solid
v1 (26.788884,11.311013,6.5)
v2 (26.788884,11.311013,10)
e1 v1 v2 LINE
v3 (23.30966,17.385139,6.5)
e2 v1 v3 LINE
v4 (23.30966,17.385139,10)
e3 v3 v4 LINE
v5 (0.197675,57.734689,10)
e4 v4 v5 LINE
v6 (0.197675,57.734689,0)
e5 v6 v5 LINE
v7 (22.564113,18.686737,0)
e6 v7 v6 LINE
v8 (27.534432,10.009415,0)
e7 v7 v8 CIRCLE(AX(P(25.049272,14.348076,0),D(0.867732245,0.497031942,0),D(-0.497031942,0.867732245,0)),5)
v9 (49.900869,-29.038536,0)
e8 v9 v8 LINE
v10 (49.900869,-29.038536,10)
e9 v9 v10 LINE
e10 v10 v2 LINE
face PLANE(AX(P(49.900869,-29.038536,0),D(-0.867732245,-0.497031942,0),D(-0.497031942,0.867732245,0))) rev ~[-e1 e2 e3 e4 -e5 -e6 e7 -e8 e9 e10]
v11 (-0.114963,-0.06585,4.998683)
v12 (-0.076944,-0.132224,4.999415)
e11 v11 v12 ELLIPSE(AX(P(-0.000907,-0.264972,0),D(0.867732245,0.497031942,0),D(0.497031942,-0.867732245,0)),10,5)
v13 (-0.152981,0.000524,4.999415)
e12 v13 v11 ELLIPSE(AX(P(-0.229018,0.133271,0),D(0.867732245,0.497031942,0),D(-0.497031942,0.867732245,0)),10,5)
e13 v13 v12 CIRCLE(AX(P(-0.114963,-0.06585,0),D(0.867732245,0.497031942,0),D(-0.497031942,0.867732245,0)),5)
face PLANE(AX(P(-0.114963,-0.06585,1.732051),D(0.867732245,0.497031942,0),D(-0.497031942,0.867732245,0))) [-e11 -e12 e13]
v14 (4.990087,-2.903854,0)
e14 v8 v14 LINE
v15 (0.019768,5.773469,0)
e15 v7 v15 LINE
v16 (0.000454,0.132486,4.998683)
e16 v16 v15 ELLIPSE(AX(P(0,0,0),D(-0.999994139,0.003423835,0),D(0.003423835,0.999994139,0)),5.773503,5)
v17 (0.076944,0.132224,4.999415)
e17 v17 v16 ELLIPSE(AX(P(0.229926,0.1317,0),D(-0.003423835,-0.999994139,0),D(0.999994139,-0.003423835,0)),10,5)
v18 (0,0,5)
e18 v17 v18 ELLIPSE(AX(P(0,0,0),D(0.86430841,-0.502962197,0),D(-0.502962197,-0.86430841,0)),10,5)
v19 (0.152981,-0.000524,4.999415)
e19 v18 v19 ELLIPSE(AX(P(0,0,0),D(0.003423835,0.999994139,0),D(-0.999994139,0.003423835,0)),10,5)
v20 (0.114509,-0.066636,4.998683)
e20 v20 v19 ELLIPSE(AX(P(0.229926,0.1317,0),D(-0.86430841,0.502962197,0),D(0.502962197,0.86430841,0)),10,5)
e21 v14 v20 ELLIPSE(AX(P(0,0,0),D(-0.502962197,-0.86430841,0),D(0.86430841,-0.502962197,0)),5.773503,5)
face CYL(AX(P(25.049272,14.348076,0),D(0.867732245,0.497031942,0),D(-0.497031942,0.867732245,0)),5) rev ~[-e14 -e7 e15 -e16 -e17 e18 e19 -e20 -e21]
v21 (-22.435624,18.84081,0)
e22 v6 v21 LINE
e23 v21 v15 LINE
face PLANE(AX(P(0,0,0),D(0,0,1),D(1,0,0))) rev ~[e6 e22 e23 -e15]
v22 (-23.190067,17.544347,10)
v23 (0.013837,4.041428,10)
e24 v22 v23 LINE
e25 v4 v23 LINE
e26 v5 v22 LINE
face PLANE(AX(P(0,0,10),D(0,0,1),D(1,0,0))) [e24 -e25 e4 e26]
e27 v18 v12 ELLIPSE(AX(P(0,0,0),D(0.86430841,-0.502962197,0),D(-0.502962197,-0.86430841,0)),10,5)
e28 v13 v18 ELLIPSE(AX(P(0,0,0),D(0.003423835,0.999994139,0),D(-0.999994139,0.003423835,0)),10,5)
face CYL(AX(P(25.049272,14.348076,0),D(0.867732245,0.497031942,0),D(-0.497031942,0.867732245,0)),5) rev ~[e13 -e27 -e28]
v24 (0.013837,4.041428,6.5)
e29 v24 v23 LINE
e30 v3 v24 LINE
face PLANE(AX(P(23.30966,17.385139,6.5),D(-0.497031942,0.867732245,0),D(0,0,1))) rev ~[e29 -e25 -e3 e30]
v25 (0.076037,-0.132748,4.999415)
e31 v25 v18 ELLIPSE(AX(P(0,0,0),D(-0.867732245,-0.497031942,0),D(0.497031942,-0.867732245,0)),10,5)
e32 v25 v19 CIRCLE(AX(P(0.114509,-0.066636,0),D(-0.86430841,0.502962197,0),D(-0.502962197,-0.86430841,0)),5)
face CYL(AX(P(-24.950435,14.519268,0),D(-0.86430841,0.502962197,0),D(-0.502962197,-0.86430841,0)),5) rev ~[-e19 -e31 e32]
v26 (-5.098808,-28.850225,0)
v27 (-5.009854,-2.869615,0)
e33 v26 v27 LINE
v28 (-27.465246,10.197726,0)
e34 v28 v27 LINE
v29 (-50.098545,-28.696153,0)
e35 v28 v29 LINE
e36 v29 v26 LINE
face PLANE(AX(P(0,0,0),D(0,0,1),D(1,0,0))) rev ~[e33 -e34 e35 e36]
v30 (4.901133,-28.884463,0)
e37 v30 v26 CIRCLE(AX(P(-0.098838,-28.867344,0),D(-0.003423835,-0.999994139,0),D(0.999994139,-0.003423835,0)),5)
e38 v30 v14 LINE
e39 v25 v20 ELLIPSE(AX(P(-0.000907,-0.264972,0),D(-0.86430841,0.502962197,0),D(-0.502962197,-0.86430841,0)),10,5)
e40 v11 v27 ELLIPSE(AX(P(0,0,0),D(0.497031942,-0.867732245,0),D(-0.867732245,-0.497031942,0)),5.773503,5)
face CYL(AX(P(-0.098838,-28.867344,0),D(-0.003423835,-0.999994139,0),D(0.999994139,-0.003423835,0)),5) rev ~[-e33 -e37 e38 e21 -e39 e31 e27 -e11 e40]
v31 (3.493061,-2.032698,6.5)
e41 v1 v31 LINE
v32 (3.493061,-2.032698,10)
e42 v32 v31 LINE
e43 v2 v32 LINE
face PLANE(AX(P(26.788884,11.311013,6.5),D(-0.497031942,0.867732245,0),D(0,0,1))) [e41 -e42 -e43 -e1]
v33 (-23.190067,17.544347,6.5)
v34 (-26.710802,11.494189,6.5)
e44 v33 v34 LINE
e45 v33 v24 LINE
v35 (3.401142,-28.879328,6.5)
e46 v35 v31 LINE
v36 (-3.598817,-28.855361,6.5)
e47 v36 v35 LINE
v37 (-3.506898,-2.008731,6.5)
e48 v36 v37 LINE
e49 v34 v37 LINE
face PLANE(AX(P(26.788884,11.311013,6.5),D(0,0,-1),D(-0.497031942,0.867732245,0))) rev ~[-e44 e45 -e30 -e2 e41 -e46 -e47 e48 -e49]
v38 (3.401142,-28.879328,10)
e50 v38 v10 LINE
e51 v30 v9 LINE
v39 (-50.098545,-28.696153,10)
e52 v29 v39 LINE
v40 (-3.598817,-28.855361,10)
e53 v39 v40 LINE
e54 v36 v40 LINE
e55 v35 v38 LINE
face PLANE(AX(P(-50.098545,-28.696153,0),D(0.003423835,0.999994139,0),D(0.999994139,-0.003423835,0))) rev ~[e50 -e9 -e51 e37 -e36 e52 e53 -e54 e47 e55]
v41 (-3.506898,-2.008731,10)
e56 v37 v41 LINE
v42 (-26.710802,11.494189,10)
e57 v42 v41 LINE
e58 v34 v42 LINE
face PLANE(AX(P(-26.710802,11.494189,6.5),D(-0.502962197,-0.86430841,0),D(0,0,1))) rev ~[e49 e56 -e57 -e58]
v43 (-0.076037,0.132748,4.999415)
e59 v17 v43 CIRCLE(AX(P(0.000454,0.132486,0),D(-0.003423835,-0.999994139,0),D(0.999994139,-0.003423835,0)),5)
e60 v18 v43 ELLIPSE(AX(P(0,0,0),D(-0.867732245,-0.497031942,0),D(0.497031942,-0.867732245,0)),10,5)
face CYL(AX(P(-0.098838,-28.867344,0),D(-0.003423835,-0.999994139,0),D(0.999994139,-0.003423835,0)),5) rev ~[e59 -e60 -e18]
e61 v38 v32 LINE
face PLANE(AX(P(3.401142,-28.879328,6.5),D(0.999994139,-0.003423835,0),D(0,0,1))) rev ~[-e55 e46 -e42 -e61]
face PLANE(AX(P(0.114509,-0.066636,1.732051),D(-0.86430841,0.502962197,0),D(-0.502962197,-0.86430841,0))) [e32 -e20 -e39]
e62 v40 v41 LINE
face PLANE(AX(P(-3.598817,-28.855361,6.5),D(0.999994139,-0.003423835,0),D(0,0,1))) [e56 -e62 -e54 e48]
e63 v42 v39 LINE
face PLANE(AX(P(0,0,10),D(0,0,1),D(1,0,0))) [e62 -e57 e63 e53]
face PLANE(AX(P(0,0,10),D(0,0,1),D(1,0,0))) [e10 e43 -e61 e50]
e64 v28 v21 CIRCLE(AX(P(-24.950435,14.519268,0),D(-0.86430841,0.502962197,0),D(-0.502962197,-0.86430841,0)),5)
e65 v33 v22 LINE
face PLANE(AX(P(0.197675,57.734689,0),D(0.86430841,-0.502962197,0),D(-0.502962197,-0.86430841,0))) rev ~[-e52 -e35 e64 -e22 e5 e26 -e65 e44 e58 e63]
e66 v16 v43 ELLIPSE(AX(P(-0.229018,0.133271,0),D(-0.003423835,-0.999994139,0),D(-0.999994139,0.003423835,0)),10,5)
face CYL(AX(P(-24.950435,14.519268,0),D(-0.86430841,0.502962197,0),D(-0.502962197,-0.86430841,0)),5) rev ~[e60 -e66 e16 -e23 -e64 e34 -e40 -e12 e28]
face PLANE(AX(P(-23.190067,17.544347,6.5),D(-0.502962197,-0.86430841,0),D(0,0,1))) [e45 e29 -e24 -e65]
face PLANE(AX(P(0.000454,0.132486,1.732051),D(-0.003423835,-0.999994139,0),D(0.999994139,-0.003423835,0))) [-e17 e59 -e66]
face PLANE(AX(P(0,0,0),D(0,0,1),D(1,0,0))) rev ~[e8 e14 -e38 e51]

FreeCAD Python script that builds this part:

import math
import FreeCAD as App
import Part
import Sketcher
from FreeCAD import Vector


def add_polygon(sketch, points):
    """Adds a closed chain of lines whose ends are joined by coincident constraints."""
    first, n = sketch.GeometryCount, len(points)
    for a, b in zip(points, points[1:] + points[:1]):
        sketch.addGeometry(Part.LineSegment(App.Vector(*a, 0), App.Vector(*b, 0)), False)
    for i in range(n):
        sketch.addConstraint(Sketcher.Constraint("Coincident", first + i, 2, first + (i + 1) % n, 1))

doc = App.newDocument("Part")
body = doc.addObject("PartDesign::Body", "Body")

sketch1 = doc.addObject("Sketcher::SketchObject", "Sketch")
body.addObject(sketch1)
sketch1.AttachmentSupport = (doc.XY_Plane, [""])
sketch1.MapMode = "FlatFace"
add_polygon(sketch1, [(50, -29), (0, 58), (-50, -29)])
sketch1.addConstraint([
    Sketcher.Constraint("Equal", 0, 1),
    Sketcher.Constraint("Equal", 1, 2),
    Sketcher.Constraint("Distance", 0, 100.0),
    Sketcher.Constraint("DistanceY", -1, 1, 0, 2, 57.734689),
    Sketcher.Constraint("DistanceX", -1, 1, 2, 2, 49.900869),
    Sketcher.Constraint("DistanceX", 1, 2, 0, 2, 50.29622),
])
pad1 = doc.addObject("PartDesign::Pad", "Pad")
body.addObject(pad1)
pad1.Profile = sketch1
pad1.Length = 10

sketch2 = doc.addObject("Sketcher::SketchObject", "Sketch001")
body.addObject(sketch2)
sketch2.Placement = App.Placement(Vector(-0.098838, -28.867344, 0), App.Rotation(Vector(0.999994139, -0.003423835, 0), Vector(0, 0, 1.000000001), Vector(-0.003423835, -0.999994139, 0), "ZXY"))
sketch2.addGeometry([
    Part.LineSegment(Vector(-5, 0, 0), Vector(5, 0, 0)),
    Part.ArcOfCircle(Part.Circle(Vector(0, 0, 0), Vector(0, 0, 1), 5), math.radians(0), math.radians(180)),
], False)
sketch2.addConstraint([
    Sketcher.Constraint("Coincident", 0, 1, 1, 2),
    Sketcher.Constraint("Coincident", 1, 1, 0, 2),
    Sketcher.Constraint("Horizontal", 0),
    Sketcher.Constraint("Coincident", 1, 3, -1, 1),
    Sketcher.Constraint("PointOnObject", 0, 1, -1),
    Sketcher.Constraint("Radius", 1, 5.0),
])
pocket1 = doc.addObject("PartDesign::Pocket", "Pocket")
body.addObject(pocket1)
pocket1.Profile = sketch2
pocket1.Length = 29

sketch3 = doc.addObject("Sketcher::SketchObject", "Sketch002")
body.addObject(sketch3)
sketch3.Placement = App.Placement(Vector(-24.950435, 14.519268, 0), App.Rotation(Vector(-0.502962197, -0.86430841, 0), Vector(0, 0, 0.999999999), Vector(-0.86430841, 0.502962197, 0), "ZXY"))
sketch3.addGeometry([
    Part.LineSegment(Vector(-5, 0, 0), Vector(5, 0, 0)),
    Part.ArcOfCircle(Part.Circle(Vector(0, 0, 0), Vector(0, 0, 1), 5), math.radians(0), math.radians(180)),
], False)
sketch3.addConstraint([
    Sketcher.Constraint("Coincident", 0, 1, 1, 2),
    Sketcher.Constraint("Coincident", 1, 1, 0, 2),
    Sketcher.Constraint("Horizontal", 0),
    Sketcher.Constraint("Coincident", 1, 3, -1, 1),
    Sketcher.Constraint("PointOnObject", 0, 1, -1),
    Sketcher.Constraint("Radius", 1, 5.0),
])
pocket2 = doc.addObject("PartDesign::Pocket", "Pocket001")
body.addObject(pocket2)
pocket2.Profile = sketch3
pocket2.Length = 29

sketch4 = doc.addObject("Sketcher::SketchObject", "Sketch003")
body.addObject(sketch4)
sketch4.Placement = App.Placement(Vector(25.049272, 14.348076, 0), App.Rotation(Vector(-0.497031942, 0.867732245, 0), Vector(0, 0, 1), Vector(0.867732245, 0.497031942, 0), "ZXY"))
sketch4.addGeometry([
    Part.LineSegment(Vector(-5, 0, 0), Vector(5, 0, 0)),
    Part.ArcOfCircle(Part.Circle(Vector(0, 0, 0), Vector(0, 0, 1), 5), math.radians(0), math.radians(180)),
], False)
sketch4.addConstraint([
    Sketcher.Constraint("Coincident", 0, 1, 1, 2),
    Sketcher.Constraint("Coincident", 1, 1, 0, 2),
    Sketcher.Constraint("Horizontal", 0),
    Sketcher.Constraint("Coincident", 1, 3, -1, 1),
    Sketcher.Constraint("PointOnObject", 0, 1, -1),
    Sketcher.Constraint("Radius", 1, 5.0),
])
pocket3 = doc.addObject("PartDesign::Pocket", "Pocket002")
body.addObject(pocket3)
pocket3.Profile = sketch4
pocket3.Length = 29

sketch5 = doc.addObject("Sketcher::SketchObject", "Sketch004")
body.addObject(sketch5)
sketch5.Placement = App.Placement(Vector(25.049272, 14.348076, 0), App.Rotation(Vector(-0.497031942, 0.867732245, 0), Vector(0, 0, 1), Vector(0.867732245, 0.497031942, 0), "ZXY"))
add_polygon(sketch5, [(-3.5, 10), (-3.5, 6.5), (3.5, 6.5), (3.5, 10)])
sketch5.addConstraint([
    Sketcher.Constraint("Vertical", 0),
    Sketcher.Constraint("Horizontal", 1),
    Sketcher.Constraint("Vertical", 2),
    Sketcher.Constraint("Horizontal", 3),
    Sketcher.Constraint("DistanceX", 1, 1, 1, 2, 7.0),
    Sketcher.Constraint("DistanceY", 0, 2, 0, 1, 3.5),
    Sketcher.Constraint("DistanceY", -1, 1, 2, 2, 10.0),
    Sketcher.Constraint("DistanceX", 0, 2, -1, 1, 3.5),
])
pocket4 = doc.addObject("PartDesign::Pocket", "Pocket003")
body.addObject(pocket4)
pocket4.Profile = sketch5
pocket4.Length = 29

sketch6 = doc.addObject("Sketcher::SketchObject", "Sketch005")
body.addObject(sketch6)
sketch6.Placement = App.Placement(Vector(-24.950435, 14.519268, 0), App.Rotation(Vector(-0.502962197, -0.86430841, 0), Vector(0, 0, 0.999999999), Vector(-0.86430841, 0.502962197, 0), "ZXY"))
add_polygon(sketch6, [(-3.5, 10), (-3.5, 6.5), (3.5, 6.5), (3.5, 10)])
sketch6.addConstraint([
    Sketcher.Constraint("Vertical", 0),
    Sketcher.Constraint("Horizontal", 1),
    Sketcher.Constraint("Vertical", 2),
    Sketcher.Constraint("Horizontal", 3),
    Sketcher.Constraint("DistanceX", 1, 1, 1, 2, 7.0),
    Sketcher.Constraint("DistanceY", 0, 2, 0, 1, 3.5),
    Sketcher.Constraint("DistanceY", -1, 1, 2, 2, 10.0),
    Sketcher.Constraint("DistanceX", 0, 2, -1, 1, 3.5),
])
pocket5 = doc.addObject("PartDesign::Pocket", "Pocket004")
body.addObject(pocket5)
pocket5.Profile = sketch6
pocket5.Length = 29

sketch7 = doc.addObject("Sketcher::SketchObject", "Sketch006")
body.addObject(sketch7)
sketch7.Placement = App.Placement(Vector(-0.098838, -28.867344, 0), App.Rotation(Vector(0.999994139, -0.003423835, 0), Vector(0, 0, 1.000000001), Vector(-0.003423835, -0.999994139, 0), "ZXY"))
add_polygon(sketch7, [(-3.5, 10), (-3.5, 6.5), (3.5, 6.5), (3.5, 10)])
sketch7.addConstraint([
    Sketcher.Constraint("Vertical", 0),
    Sketcher.Constraint("Horizontal", 1),
    Sketcher.Constraint("Vertical", 2),
    Sketcher.Constraint("Horizontal", 3),
    Sketcher.Constraint("DistanceX", 1, 1, 1, 2, 7.0),
    Sketcher.Constraint("DistanceY", 0, 2, 0, 1, 3.5),
    Sketcher.Constraint("DistanceY", -1, 1, 2, 2, 10.0),
    Sketcher.Constraint("DistanceX", 0, 2, -1, 1, 3.5),
])
pocket6 = doc.addObject("PartDesign::Pocket", "Pocket005")
body.addObject(pocket6)
pocket6.Profile = sketch7
pocket6.Length = 29

doc.recompute()
